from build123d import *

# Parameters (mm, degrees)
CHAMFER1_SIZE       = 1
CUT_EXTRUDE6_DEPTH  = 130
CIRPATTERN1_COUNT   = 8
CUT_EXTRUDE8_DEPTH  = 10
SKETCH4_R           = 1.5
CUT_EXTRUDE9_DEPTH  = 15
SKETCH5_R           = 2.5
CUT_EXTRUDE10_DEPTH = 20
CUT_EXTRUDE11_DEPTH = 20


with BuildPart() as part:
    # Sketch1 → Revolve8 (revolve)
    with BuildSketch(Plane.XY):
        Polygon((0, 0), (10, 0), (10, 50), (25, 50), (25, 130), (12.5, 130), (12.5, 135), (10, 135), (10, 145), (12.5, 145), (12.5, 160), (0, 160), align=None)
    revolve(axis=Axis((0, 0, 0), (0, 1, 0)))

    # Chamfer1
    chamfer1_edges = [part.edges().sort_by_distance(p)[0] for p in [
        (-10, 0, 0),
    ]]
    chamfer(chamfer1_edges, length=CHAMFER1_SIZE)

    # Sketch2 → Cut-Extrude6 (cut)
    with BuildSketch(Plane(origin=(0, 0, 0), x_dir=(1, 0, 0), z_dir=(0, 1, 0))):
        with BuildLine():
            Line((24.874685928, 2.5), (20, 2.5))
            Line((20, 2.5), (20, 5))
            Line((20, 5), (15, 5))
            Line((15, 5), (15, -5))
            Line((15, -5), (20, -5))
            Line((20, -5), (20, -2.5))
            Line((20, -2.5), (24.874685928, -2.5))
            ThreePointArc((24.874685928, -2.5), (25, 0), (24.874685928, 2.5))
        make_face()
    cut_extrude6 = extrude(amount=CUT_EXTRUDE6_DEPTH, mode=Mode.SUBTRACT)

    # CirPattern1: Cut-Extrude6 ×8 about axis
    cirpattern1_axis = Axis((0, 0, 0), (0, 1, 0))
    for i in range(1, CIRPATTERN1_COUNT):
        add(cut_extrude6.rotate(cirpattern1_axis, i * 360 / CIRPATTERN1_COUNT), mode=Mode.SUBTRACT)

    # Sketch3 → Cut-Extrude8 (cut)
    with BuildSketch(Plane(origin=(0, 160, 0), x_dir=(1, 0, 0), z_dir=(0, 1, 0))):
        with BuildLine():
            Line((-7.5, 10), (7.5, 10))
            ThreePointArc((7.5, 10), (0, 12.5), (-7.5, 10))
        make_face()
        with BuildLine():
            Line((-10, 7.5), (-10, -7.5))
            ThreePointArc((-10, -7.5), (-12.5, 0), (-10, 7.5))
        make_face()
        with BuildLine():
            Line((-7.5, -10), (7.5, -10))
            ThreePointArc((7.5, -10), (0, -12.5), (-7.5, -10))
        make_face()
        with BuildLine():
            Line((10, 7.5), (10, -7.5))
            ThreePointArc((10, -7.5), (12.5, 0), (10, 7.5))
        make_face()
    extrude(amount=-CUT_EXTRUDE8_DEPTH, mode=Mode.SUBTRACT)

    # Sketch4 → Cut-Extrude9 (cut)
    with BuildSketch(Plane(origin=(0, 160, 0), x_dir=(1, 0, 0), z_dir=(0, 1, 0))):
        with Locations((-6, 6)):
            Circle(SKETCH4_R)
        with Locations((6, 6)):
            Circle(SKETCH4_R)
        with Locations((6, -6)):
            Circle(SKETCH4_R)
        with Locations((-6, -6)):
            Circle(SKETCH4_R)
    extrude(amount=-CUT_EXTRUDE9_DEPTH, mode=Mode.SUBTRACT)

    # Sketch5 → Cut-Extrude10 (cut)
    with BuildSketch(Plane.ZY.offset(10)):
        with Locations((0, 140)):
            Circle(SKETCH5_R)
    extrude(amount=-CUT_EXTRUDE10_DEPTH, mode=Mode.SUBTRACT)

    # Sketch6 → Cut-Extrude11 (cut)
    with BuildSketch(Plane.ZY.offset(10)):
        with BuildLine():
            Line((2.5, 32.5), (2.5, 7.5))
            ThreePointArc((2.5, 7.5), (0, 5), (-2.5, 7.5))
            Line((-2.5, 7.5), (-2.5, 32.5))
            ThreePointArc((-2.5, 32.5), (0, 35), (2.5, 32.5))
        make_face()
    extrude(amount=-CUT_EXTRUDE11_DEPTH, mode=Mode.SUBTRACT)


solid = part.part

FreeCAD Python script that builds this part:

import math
import FreeCAD as App
import Part
import Sketcher

V = App.Vector


def edges_at(feature, points):
    """Names of the edges that pass closest to the given points."""
    edges = feature.Shape.Edges
    near = lambda p: min(range(len(edges)), key=lambda i: edges[i].distToShape(Part.Vertex(*p))[0])
    return sorted({f"Edge{near(p) + 1}" for p in points})


def add_polygon(sketch, points):
    """Adds a closed chain of lines whose ends are joined by coincident constraints."""
    first, n = sketch.GeometryCount, len(points)
    for a, b in zip(points, points[1:] + points[:1]):
        sketch.addGeometry(Part.LineSegment(App.Vector(*a, 0), App.Vector(*b, 0)), False)
    for i in range(n):
        sketch.addConstraint(Sketcher.Constraint("Coincident", first + i, 2, first + (i + 1) % n, 1))

doc = App.newDocument("Part")
body = doc.addObject("PartDesign::Body", "Body")

# Sketch on XY plane
sketch1 = doc.addObject("Sketcher::SketchObject", "Sketch")
body.addObject(sketch1)
sketch1.AttachmentSupport = (doc.XY_Plane, [""])
sketch1.MapMode = "FlatFace"
add_polygon(sketch1, [(0, 0), (10, 0), (10, 50), (25, 50), (25, 130), (12.5, 130), (12.5, 135), (10, 135), (10, 145), (12.5, 145), (12.5, 160), (0, 160)])  # lines 0-11
sketch1.addConstraint([
    Sketcher.Constraint("Horizontal", 0),
    Sketcher.Constraint("Vertical", 1),
    Sketcher.Constraint("Horizontal", 2),
    Sketcher.Constraint("Vertical", 3),
    Sketcher.Constraint("Horizontal", 4),
    Sketcher.Constraint("Vertical", 5),
    Sketcher.Constraint("Horizontal", 6),
    Sketcher.Constraint("Vertical", 7),
    Sketcher.Constraint("Horizontal", 8),
    Sketcher.Constraint("Vertical", 9),
    Sketcher.Constraint("Horizontal", 10),
    Sketcher.Constraint("Vertical", 11),
    Sketcher.Constraint("Coincident", 11, 2, -1, 1),
    Sketcher.Constraint("Vertical", 1, 2, 6, 2),
    Sketcher.Constraint("Vertical", 5, 2, 8, 2),
    Sketcher.Constraint("Equal", 4, 10),
    Sketcher.Constraint("Equal", 0, 7),
    Sketcher.Constraint("Equal", 2, 9),
    Sketcher.Constraint("DistanceX", 0, 1, 0, 2, 10.0),
    Sketcher.Constraint("DistanceX", 2, 1, 2, 2, 15.0),
    Sketcher.Constraint("DistanceY", 1, 1, 1, 2, 50.0),
    Sketcher.Constraint("DistanceY", 3, 1, 3, 2, 80.0),
    Sketcher.Constraint("DistanceY", 5, 1, 5, 2, 5.0),
])
revolution = doc.addObject("PartDesign::Revolution", "Revolution")
body.addObject(revolution)
revolution.Profile = sketch1
revolution.ReferenceAxis = (sketch1, ["V_Axis"])
revolution.Angle = 360
doc.recompute()

chamfer = doc.addObject("PartDesign::Chamfer", "Chamfer")
body.addObject(chamfer)
chamfer.Base = (revolution, edges_at(revolution, [(-10, 0, 0)]))
chamfer.Size = 1

# Sketch on XZ plane
sketch2 = doc.addObject("Sketcher::SketchObject", "Sketch001")
body.addObject(sketch2)
sketch2.AttachmentSupport = (doc.XZ_Plane, [""])
sketch2.MapMode = "FlatFace"
sketch2.addGeometry([
    Part.LineSegment(V(24.874686, -2.5, 0), V(20, -2.5, 0)),  # 0
    Part.LineSegment(V(20, -2.5, 0), V(20, -5, 0)),  # 1
    Part.LineSegment(V(20, -5, 0), V(15, -5, 0)),  # 2
    Part.LineSegment(V(15, -5, 0), V(15, 5, 0)),  # 3
    Part.LineSegment(V(15, 5, 0), V(20, 5, 0)),  # 4
    Part.LineSegment(V(20, 5, 0), V(20, 2.5, 0)),  # 5
    Part.LineSegment(V(20, 2.5, 0), V(24.874686, 2.5, 0)),  # 6
    Part.ArcOfCircle(Part.Circle(V(0, 0, 0), V(0, 0, 1), 25), math.radians(-5.73917), math.radians(5.73917)),  # 7
], False)
sketch2.addConstraint([
    Sketcher.Constraint("Coincident", 0, 2, 1, 1),
    Sketcher.Constraint("Coincident", 1, 2, 2, 1),
    Sketcher.Constraint("Coincident", 2, 2, 3, 1),
    Sketcher.Constraint("Coincident", 3, 2, 4, 1),
    Sketcher.Constraint("Coincident", 4, 2, 5, 1),
    Sketcher.Constraint("Coincident", 5, 2, 6, 1),
    Sketcher.Constraint("Coincident", 6, 2, 7, 2),
    Sketcher.Constraint("Coincident", 7, 1, 0, 1),
    Sketcher.Constraint("Horizontal", 0),
    Sketcher.Constraint("Vertical", 1),
    Sketcher.Constraint("Horizontal", 2),
    Sketcher.Constraint("Vertical", 3),
    Sketcher.Constraint("Horizontal", 4),
    Sketcher.Constraint("Vertical", 5),
    Sketcher.Constraint("Horizontal", 6),
    Sketcher.Constraint("Coincident", 7, 3, -1, 1),
    Sketcher.Constraint("Symmetric", 1, 2, 4, 2, -1),
    Sketcher.Constraint("Vertical", 6, 2, 7, 1),
    Sketcher.Constraint("Radius", 7, 25.0),
    Sketcher.Constraint("DistanceX", 2, 2, 2, 1, 5.0),
    Sketcher.Constraint("DistanceY", 3, 1, 3, 2, 10.0),
    Sketcher.Constraint("DistanceY", 1, 2, 1, 1, 2.5),
    Sketcher.Constraint("DistanceX", -1, 1, 0, 2, 20.0),
])
pocket1 = doc.addObject("PartDesign::Pocket", "Pocket")
body.addObject(pocket1)
pocket1.Profile = sketch2
pocket1.Length = 130
doc.recompute()

polarpattern = doc.addObject("PartDesign::PolarPattern", "PolarPattern")
body.addObject(polarpattern)
polarpattern.Originals = [pocket1]
polarpattern.Axis = (doc.Y_Axis, [""])
polarpattern.Angle = 360
polarpattern.Occurrences = 8
body.Tip = polarpattern

# Sketch on XZ plane
sketch3 = doc.addObject("Sketcher::SketchObject", "Sketch002")
body.addObject(sketch3)
sketch3.AttachmentSupport = (doc.XZ_Plane, [""])
sketch3.MapMode = "FlatFace"
sketch3.AttachmentOffset = App.Placement(V(0, 0, -160), App.Rotation())
sketch3.addGeometry([
    Part.LineSegment(V(-7.5, -10, 0), V(7.5, -10, 0)),  # 0
    Part.ArcOfCircle(Part.Circle(V(0, 0, 0), V(0, 0, 1), 12.5), math.radians(-126.869898), math.radians(-53.130102)),  # 1
    Part.LineSegment(V(-10, 7.5, 0), V(-10, -7.5, 0)),  # 2
    Part.ArcOfCircle(Part.Circle(V(0, 0, 0), V(0, 0, 1), 12.5), math.radians(143.130102), math.radians(216.869898)),  # 3
    Part.LineSegment(V(7.5, 10, 0), V(-7.5, 10, 0)),  # 4
    Part.ArcOfCircle(Part.Circle(V(0, 0, 0), V(0, 0, 1), 12.5), math.radians(53.130102), math.radians(126.869898)),  # 5
    Part.LineSegment(V(10, -7.5, 0), V(10, 7.5, 0)),  # 6
    Part.ArcOfCircle(Part.Circle(V(0, 0, 0), V(0, 0, 1), 12.5), math.radians(-36.869898), math.radians(36.869898)),  # 7
], False)
sketch3.addConstraint([
    Sketcher.Constraint("Coincident", 0, 1, 1, 1),
    Sketcher.Constraint("Coincident", 1, 2, 0, 2),
    Sketcher.Constraint("Coincident", 2, 1, 3, 1),
    Sketcher.Constraint("Coincident", 3, 2, 2, 2),
    Sketcher.Constraint("Coincident", 4, 1, 5, 1),
    Sketcher.Constraint("Coincident", 5, 2, 4, 2),
    Sketcher.Constraint("Coincident", 6, 1, 7, 1),
    Sketcher.Constraint("Coincident", 7, 2, 6, 2),
    Sketcher.Constraint("Horizontal", 0),
    Sketcher.Constraint("Vertical", 2),
    Sketcher.Constraint("Horizontal", 4),
    Sketcher.Constraint("Vertical", 6),
    Sketcher.Constraint("Coincident", 1, 3, -1, 1),
    Sketcher.Constraint("Coincident", 3, 3, -1, 1),
    Sketcher.Constraint("Coincident", 5, 3, -1, 1),
    Sketcher.Constraint("Coincident", 7, 3, -1, 1),
    Sketcher.Constraint("Equal", 1, 3),
    Sketcher.Constraint("Equal", 3, 5),
    Sketcher.Constraint("Equal", 5, 7),
    Sketcher.Constraint("Horizontal", 3, 2, 6, 1),
    Sketcher.Constraint("Vertical", 1, 2, 4, 1),
    Sketcher.Constraint("Equal", 4, 2),
    Sketcher.Constraint("Radius", 1, 12.5),
    Sketcher.Constraint("DistanceX", 0, 1, 0, 2, 15.0),
])
pocket2 = doc.addObject("PartDesign::Pocket", "Pocket001")
body.addObject(pocket2)
pocket2.Profile = sketch3
pocket2.Length = 10
pocket2.Reversed = True

# Sketch on XZ plane
sketch4 = doc.addObject("Sketcher::SketchObject", "Sketch003")
body.addObject(sketch4)
sketch4.AttachmentSupport = (doc.XZ_Plane, [""])
sketch4.MapMode = "FlatFace"
sketch4.AttachmentOffset = App.Placement(V(0, 0, -160), App.Rotation())
sketch4.addGeometry([
    Part.Circle(V(-6, -6, 0), V(0, 0, 1), 1.5),
    Part.Circle(V(6, -6, 0), V(0, 0, 1), 1.5),
    Part.Circle(V(6, 6, 0), V(0, 0, 1), 1.5),
    Part.Circle(V(-6, 6, 0), V(0, 0, 1), 1.5),
], False)
sketch4.addConstraint([
    Sketcher.Constraint("Equal", 0, 1),
    Sketcher.Constraint("Equal", 1, 2),
    Sketcher.Constraint("Equal", 2, 3),
    Sketcher.Constraint("Symmetric", 0, 3, 2, 3, -1, 1),
    Sketcher.Constraint("Symmetric", 1, 3, 3, 3, -1, 1),
    Sketcher.Constraint("Symmetric", 0, 3, 1, 3, -2),
    Sketcher.Constraint("Diameter", 0, 3.0),
    Sketcher.Constraint("DistanceX", 0, 3, -1, 1, 6.0),
    Sketcher.Constraint("DistanceY", 0, 3, -1, 1, 6.0),
])
pocket3 = doc.addObject("PartDesign::Pocket", "Pocket002")
body.addObject(pocket3)
pocket3.Profile = sketch4
pocket3.Length = 15
pocket3.Reversed = True

# Sketch on YZ plane
sketch5 = doc.addObject("Sketcher::SketchObject", "Sketch004")
body.addObject(sketch5)
sketch5.AttachmentSupport = (doc.YZ_Plane, [""])
sketch5.MapMode = "FlatFace"
sketch5.AttachmentOffset = App.Placement(V(0, 0, -10), App.Rotation())
sketch5.addGeometry(Part.Circle(V(140, 0, 0), V(0, 0, 1), 2.5), False)
sketch5.addConstraint([
    Sketcher.Constraint("PointOnObject", 0, 3, -1),
    Sketcher.Constraint("Diameter", 0, 5.0),
    Sketcher.Constraint("DistanceX", -1, 1, 0, 3, 140.0),
])
pocket4 = doc.addObject("PartDesign::Pocket", "Pocket003")
body.addObject(pocket4)
pocket4.Profile = sketch5
pocket4.Length = 20
pocket4.Reversed = True

# Sketch on YZ plane
sketch6 = doc.addObject("Sketcher::SketchObject", "Sketch005")
body.addObject(sketch6)
sketch6.AttachmentSupport = (doc.YZ_Plane, [""])
sketch6.MapMode = "FlatFace"
sketch6.AttachmentOffset = App.Placement(V(0, 0, -10), App.Rotation())
sketch6.addGeometry([
    Part.LineSegment(V(7.5, 2.5, 0), V(32.5, 2.5, 0)),
    Part.ArcOfCircle(Part.Circle(V(32.5, 0, 0), V(0, 0, 1), 2.5), math.radians(-90), math.radians(90)),
    Part.LineSegment(V(32.5, -2.5, 0), V(7.5, -2.5, 0)),
    Part.ArcOfCircle(Part.Circle(V(7.5, 0, 0), V(0, 0, 1), 2.5), math.radians(90), math.radians(270)),
], False)
sketch6.addConstraint([
    Sketcher.Constraint("Tangent", 0, 2, 1, 2),
    Sketcher.Constraint("Tangent", 1, 1, 2, 1),
    Sketcher.Constraint("Tangent", 2, 2, 3, 2),
    Sketcher.Constraint("Tangent", 3, 1, 0, 1),
    Sketcher.Constraint("Horizontal", 0),
    Sketcher.Constraint("Horizontal", 2),
    Sketcher.Constraint("PointOnObject", 1, 3, -1),
    Sketcher.Constraint("Radius", 1, 2.5),
    Sketcher.Constraint("DistanceX", 0, 1, 0, 2, 25.0),
    Sketcher.Constraint("DistanceX", -1, 1, 1, 3, 32.5),
])
pocket5 = doc.addObject("PartDesign::Pocket", "Pocket004")
body.addObject(pocket5)
pocket5.Profile = sketch6
pocket5.Length = 20
pocket5.Reversed = True

doc.recompute()
